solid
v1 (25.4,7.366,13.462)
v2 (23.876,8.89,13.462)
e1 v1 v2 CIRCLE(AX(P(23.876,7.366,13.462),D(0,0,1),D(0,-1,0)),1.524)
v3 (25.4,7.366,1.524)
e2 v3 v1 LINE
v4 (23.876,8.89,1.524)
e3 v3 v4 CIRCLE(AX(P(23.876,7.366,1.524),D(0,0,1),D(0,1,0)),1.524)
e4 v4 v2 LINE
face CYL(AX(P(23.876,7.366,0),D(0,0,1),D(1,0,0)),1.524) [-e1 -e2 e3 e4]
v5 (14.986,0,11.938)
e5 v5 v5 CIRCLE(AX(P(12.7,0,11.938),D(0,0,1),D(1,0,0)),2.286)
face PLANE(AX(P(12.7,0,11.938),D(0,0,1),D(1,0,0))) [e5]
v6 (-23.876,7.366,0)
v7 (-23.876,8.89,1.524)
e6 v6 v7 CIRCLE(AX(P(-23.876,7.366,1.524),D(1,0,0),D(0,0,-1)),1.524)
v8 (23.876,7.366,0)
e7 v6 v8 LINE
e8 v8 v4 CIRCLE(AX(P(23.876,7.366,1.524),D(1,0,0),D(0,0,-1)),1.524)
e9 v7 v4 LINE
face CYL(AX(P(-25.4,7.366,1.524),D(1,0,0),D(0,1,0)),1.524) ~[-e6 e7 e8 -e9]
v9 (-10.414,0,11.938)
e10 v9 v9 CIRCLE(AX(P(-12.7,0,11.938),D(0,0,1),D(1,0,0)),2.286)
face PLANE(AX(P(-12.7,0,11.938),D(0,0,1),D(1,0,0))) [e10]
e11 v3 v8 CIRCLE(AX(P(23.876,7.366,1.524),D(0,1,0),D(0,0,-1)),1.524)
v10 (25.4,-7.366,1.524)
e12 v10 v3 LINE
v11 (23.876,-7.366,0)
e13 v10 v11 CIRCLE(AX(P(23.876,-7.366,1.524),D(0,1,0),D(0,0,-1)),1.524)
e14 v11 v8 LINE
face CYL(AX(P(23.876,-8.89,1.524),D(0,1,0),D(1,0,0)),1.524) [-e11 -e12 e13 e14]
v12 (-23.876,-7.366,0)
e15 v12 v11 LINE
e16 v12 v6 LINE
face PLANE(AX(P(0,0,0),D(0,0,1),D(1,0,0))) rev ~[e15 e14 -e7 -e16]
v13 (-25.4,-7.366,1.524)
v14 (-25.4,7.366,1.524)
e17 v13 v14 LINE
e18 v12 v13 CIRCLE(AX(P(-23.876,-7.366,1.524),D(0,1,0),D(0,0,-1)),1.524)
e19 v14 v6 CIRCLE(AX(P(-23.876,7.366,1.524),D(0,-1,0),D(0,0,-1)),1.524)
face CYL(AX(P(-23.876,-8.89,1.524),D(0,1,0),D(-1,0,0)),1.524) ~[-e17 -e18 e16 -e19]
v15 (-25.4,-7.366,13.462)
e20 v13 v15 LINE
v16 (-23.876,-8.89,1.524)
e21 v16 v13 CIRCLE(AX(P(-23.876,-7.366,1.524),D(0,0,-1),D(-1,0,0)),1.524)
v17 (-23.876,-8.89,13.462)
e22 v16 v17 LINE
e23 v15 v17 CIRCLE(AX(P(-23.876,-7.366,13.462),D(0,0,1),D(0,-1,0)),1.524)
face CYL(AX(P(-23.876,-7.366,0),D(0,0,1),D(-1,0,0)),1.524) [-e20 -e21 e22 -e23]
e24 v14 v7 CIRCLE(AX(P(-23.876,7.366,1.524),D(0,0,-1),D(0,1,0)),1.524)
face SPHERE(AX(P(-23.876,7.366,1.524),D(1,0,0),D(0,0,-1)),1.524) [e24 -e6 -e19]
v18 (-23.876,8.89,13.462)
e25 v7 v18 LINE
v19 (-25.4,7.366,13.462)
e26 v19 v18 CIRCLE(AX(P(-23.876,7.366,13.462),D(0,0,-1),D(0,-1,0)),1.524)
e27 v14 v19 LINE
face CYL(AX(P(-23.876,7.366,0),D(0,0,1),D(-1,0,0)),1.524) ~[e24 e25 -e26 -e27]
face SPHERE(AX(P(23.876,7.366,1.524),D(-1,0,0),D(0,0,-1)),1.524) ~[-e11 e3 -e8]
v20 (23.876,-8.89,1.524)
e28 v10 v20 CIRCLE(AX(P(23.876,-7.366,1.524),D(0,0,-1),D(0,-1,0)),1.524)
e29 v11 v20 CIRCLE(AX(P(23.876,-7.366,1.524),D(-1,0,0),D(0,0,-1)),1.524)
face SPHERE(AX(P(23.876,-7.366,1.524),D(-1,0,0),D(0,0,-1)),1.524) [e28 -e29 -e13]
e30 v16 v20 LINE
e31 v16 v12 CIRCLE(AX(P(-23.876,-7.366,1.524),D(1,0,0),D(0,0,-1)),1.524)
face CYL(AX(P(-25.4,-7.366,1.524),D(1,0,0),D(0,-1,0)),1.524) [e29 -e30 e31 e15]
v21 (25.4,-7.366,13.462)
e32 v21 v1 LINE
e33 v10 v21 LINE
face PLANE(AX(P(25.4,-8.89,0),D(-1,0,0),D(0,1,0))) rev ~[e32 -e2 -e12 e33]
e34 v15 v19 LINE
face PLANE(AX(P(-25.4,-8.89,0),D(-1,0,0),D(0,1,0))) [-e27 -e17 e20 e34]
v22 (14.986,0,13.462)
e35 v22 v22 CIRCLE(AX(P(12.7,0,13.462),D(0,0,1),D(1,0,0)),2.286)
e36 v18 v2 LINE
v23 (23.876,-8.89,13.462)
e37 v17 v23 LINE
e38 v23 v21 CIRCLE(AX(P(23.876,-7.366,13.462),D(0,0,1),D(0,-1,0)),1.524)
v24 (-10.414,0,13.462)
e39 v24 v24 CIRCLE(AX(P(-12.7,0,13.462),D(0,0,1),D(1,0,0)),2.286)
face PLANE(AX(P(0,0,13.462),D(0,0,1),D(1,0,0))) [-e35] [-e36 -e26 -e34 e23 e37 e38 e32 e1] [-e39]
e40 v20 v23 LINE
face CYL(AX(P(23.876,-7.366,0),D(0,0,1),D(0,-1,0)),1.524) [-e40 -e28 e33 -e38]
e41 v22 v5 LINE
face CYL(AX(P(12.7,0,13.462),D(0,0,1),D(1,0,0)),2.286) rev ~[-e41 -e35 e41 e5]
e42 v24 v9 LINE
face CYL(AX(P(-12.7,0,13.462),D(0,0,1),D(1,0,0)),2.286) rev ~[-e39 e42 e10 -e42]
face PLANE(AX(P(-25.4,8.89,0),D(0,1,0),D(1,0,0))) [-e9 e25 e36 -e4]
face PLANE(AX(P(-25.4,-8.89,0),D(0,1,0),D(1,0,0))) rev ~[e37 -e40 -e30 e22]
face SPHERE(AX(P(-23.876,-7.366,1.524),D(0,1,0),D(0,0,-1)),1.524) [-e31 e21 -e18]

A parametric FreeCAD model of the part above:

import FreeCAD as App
import Part
import Sketcher
from FreeCAD import Vector
Q = App.Units.Quantity


def edges_at(feature, points):
    """Names of the edges that pass closest to the given points."""
    edges = feature.Shape.Edges
    near = lambda p: min(range(len(edges)), key=lambda i: edges[i].distToShape(Part.Vertex(*p))[0])
    return sorted({f"Edge{near(p) + 1}" for p in points})


def add_polygon(sketch, points):
    """Adds a closed chain of lines whose ends are joined by coincident constraints."""
    first, n = sketch.GeometryCount, len(points)
    for a, b in zip(points, points[1:] + points[:1]):
        sketch.addGeometry(Part.LineSegment(App.Vector(*a, 0), App.Vector(*b, 0)), False)
    for i in range(n):
        sketch.addConstraint(Sketcher.Constraint("Coincident", first + i, 2, first + (i + 1) % n, 1))

doc = App.newDocument("Part")
body = doc.addObject("PartDesign::Body", "Body")

# Sketch on XY plane
sketch1 = body.newObject("Sketcher::SketchObject", "Sketch")
sketch1.AttachmentSupport = (doc.getObject("XY_Plane"), [""])
sketch1.MapMode = "FlatFace"
add_polygon(sketch1, [(-25.4, 8.89), (-25.4, -8.89), (25.4, -8.89), (25.4, 8.89)])  # lines 0-3
sketch1.addConstraint([
    Sketcher.Constraint("Vertical", 0),
    Sketcher.Constraint("Horizontal", 1),
    Sketcher.Constraint("Vertical", 2),
    Sketcher.Constraint("Horizontal", 3),
    Sketcher.Constraint("Symmetric", 0, 2, 2, 2, -1, 1),
    Sketcher.Constraint("DistanceX", 1, 1, 1, 2, Q("2 in")),
    Sketcher.Constraint("DistanceY", 0, 2, 0, 1, Q("0.7 in")),
])
pad1 = body.newObject("PartDesign::Pad", "Pad")
pad1.Profile = sketch1
pad1.Length = Q("0.53 in")
doc.recompute()

fillet = body.newObject("PartDesign::Fillet", "Fillet")
fillet.Base = (pad1, edges_at(pad1, [
    (0, 8.89, 0),
    (-25.4, 0, 0),
    (0, -8.89, 0),
    (25.4, 0, 0),
    (-25.4, -8.89, 6.731),
    (25.4, -8.89, 6.731),
    (25.4, 8.89, 6.731),
    (-25.4, 8.89, 6.731),
]))
fillet.Radius = Q("0.06 in")

# Sketch on XY plane
sketch2 = body.newObject("Sketcher::SketchObject", "Sketch001")
sketch2.AttachmentSupport = (doc.getObject("XY_Plane"), [""])
sketch2.MapMode = "FlatFace"
sketch2.AttachmentOffset = App.Placement(Vector(0, 0, 0.53 * 25.4), App.Rotation())
sketch2.addGeometry([
    Part.Circle(Vector(12.7, 0, 0), Vector(0, 0, 1), 2.286),
    Part.Circle(Vector(-12.7, 0, 0), Vector(0, 0, 1), 2.286),
], False)
sketch2.addConstraint([
    Sketcher.Constraint("Equal", 0, 1),
    Sketcher.Constraint("Symmetric", 0, 3, 1, 3, -1, 1),
    Sketcher.Constraint("PointOnObject", 0, 3, -1),
    Sketcher.Constraint("Diameter", 0, Q("0.18 in")),
    Sketcher.Constraint("DistanceX", 1, 3, 0, 3, Q("1 in")),
])
pocket1 = body.newObject("PartDesign::Pocket", "Pocket")
pocket1.Profile = sketch2
pocket1.Length = Q("0.06 in")

doc.recompute()
